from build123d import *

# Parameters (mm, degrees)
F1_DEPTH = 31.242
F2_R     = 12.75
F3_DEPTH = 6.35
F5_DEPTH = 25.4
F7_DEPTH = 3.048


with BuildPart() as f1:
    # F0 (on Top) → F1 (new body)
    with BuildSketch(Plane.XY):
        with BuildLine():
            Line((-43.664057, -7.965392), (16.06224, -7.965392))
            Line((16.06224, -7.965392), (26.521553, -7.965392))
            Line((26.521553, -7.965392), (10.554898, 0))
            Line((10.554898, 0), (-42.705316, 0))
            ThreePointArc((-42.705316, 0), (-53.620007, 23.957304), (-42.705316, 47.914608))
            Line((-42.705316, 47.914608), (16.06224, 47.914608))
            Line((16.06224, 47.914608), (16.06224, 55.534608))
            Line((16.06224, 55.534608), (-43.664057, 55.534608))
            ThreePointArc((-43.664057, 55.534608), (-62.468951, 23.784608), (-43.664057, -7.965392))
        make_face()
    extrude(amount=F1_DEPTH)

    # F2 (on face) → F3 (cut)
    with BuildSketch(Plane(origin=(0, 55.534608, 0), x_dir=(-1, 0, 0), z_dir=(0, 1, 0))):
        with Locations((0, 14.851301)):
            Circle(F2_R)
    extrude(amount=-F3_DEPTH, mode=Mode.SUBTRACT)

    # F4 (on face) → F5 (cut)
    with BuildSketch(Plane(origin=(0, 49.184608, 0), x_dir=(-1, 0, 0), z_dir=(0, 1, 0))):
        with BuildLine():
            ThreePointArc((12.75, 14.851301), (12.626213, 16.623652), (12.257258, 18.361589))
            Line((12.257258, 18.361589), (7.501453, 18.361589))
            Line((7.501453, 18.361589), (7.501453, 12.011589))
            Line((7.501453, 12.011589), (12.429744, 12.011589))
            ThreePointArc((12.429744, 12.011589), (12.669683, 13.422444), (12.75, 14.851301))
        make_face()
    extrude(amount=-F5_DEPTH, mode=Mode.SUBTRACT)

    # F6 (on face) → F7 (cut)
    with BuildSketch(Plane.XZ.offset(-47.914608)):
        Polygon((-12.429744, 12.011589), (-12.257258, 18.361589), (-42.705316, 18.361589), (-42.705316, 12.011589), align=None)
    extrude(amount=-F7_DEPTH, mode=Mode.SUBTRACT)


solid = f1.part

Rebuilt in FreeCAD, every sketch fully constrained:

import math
import FreeCAD as App
import Part
import Sketcher
Q = App.Units.Quantity

doc = App.newDocument("Part")
body = doc.addObject("PartDesign::Body", "Body")

# Sketch on XY plane
sketch1 = doc.addObject("Sketcher::SketchObject", "Sketch")
body.addObject(sketch1)
sketch1.AttachmentSupport = (doc.XY_Plane, [""])
sketch1.MapMode = "FlatFace"
sketch1.addGeometry([
    Part.LineSegment(App.Vector(-44, -8, 0), App.Vector(27, -8, 0)),  # 0
    Part.LineSegment(App.Vector(27, -8, 0), App.Vector(11, 0, 0)),  # 1
    Part.LineSegment(App.Vector(11, 0, 0), App.Vector(-43, 0, 0)),  # 2
    Part.ArcOfCircle(Part.Circle(App.Vector(-22, 24, 0), App.Vector(0, 0, 1), 32), math.radians(131), math.radians(229)),  # 3
    Part.LineSegment(App.Vector(-43, 48, 0), App.Vector(16, 48, 0)),  # 4
    Part.LineSegment(App.Vector(16, 48, 0), App.Vector(16, 56, 0)),  # 5
    Part.LineSegment(App.Vector(16, 56, 0), App.Vector(-44, 56, 0)),  # 6
    Part.ArcOfCircle(Part.Circle(App.Vector(-26, 24, 0), App.Vector(0, 0, 1), 36), math.radians(119), math.radians(241)),  # 7
], False)
sketch1.addConstraint([
    Sketcher.Constraint("Coincident", 0, 2, 1, 1),
    Sketcher.Constraint("Coincident", 1, 2, 2, 1),
    Sketcher.Constraint("Coincident", 2, 2, 3, 2),
    Sketcher.Constraint("Coincident", 3, 1, 4, 1),
    Sketcher.Constraint("Coincident", 4, 2, 5, 1),
    Sketcher.Constraint("Coincident", 5, 2, 6, 1),
    Sketcher.Constraint("Coincident", 6, 2, 7, 1),
    Sketcher.Constraint("Coincident", 7, 2, 0, 1),
    Sketcher.Constraint("Horizontal", 0),
    Sketcher.Constraint("Horizontal", 2),
    Sketcher.Constraint("Horizontal", 4),
    Sketcher.Constraint("Vertical", 5),
    Sketcher.Constraint("Horizontal", 6),
    Sketcher.Constraint("PointOnObject", 1, 2, -1),
    Sketcher.Constraint("Vertical", 2, 2, 3, 1),
    Sketcher.Constraint("Vertical", 6, 2, 7, 2),
    Sketcher.Constraint("Radius", 3, Q("1.25 in")),
    Sketcher.Constraint("DistanceY", 5, 1, 5, 2, Q("0.3 in")),
    Sketcher.Constraint("DistanceY", 0, 2, 3, 1, Q("2.2 in")),
    Sketcher.Constraint("Radius", 7, Q("36.205642 mm")),
    Sketcher.Constraint("DistanceX", 0, 1, 0, 2, Q("70.18561 mm")),
    Sketcher.Constraint("Distance", 1, Q("17.843249 mm")),
    Sketcher.Constraint("DistanceX", 2, 2, 2, 1, Q("53.260214 mm")),
    Sketcher.Constraint("DistanceX", 4, 1, 4, 2, Q("58.767556 mm")),
    Sketcher.Constraint("DistanceX", 6, 2, 6, 1, Q("59.726297 mm")),
    Sketcher.Constraint("DistanceX", 7, 3, -1, 1, Q("26.263309 mm")),
])
pad1 = doc.addObject("PartDesign::Pad", "Pad")
body.addObject(pad1)
pad1.Profile = sketch1
pad1.Length = Q("1.23 in")

# Sketch on XZ plane
sketch2 = doc.addObject("Sketcher::SketchObject", "Sketch001")
body.addObject(sketch2)
sketch2.AttachmentSupport = (doc.XZ_Plane, [""])
sketch2.MapMode = "FlatFace"
sketch2.AttachmentOffset = App.Placement(App.Vector(0, 0, -55.534608), App.Rotation())
sketch2.addGeometry(Part.Circle(App.Vector(0, 15, 0), App.Vector(0, 0, 1), 13), False)
sketch2.addConstraint([
    Sketcher.Constraint("PointOnObject", 0, 3, -2),
    Sketcher.Constraint("Diameter", 0, Q("25.5 mm")),
    Sketcher.Constraint("DistanceY", -1, 1, 0, 3, Q("14.851301 mm")),
])
pocket1 = doc.addObject("PartDesign::Pocket", "Pocket")
body.addObject(pocket1)
pocket1.Profile = sketch2
pocket1.Length = Q("0.25 in")
pocket1.Reversed = True

# Sketch on XZ plane
sketch3 = doc.addObject("Sketcher::SketchObject", "Sketch002")
body.addObject(sketch3)
sketch3.AttachmentSupport = (doc.XZ_Plane, [""])
sketch3.MapMode = "FlatFace"
sketch3.AttachmentOffset = App.Placement(App.Vector(0, 0, -49.184608), App.Rotation())
sketch3.addGeometry([
    Part.ArcOfCircle(Part.Circle(App.Vector(0, 14.9, 0), App.Vector(0, 0, 1), 12.8), math.radians(164.02), math.radians(180)),  # 0
    Part.LineSegment(App.Vector(-12.3, 18.4, 0), App.Vector(-7.5, 18.4, 0)),  # 1
    Part.LineSegment(App.Vector(-7.5, 18.4, 0), App.Vector(-7.5, 12, 0)),  # 2
    Part.LineSegment(App.Vector(-7.5, 12, 0), App.Vector(-12.4, 12, 0)),  # 3
    Part.ArcOfCircle(Part.Circle(App.Vector(0, 14.9, 0), App.Vector(0, 0, 1), 12.8), math.radians(-180), math.radians(-167.13)),  # 4
], False)
sketch3.addConstraint([
    Sketcher.Constraint("Coincident", 0, 1, 1, 1),
    Sketcher.Constraint("Coincident", 1, 2, 2, 1),
    Sketcher.Constraint("Coincident", 2, 2, 3, 1),
    Sketcher.Constraint("Coincident", 3, 2, 4, 2),
    Sketcher.Constraint("Tangent", 4, 1, 0, 2),
    Sketcher.Constraint("Horizontal", 1),
    Sketcher.Constraint("Vertical", 2),
    Sketcher.Constraint("Horizontal", 3),
    Sketcher.Constraint("DistanceY", 2, 2, 2, 1, Q("0.25 in")),
    Sketcher.Constraint("Radius", 0, Q("12.75006 mm")),
    Sketcher.Constraint("Radius", 4, Q("12.750003 mm")),
    Sketcher.Constraint("DistanceX", 3, 2, 3, 1, Q("4.928291 mm")),
    Sketcher.Constraint("DistanceY", -1, 1, 4, 3, Q("14.851301 mm")),
    Sketcher.Constraint("DistanceX", 4, 1, -1, 1, Q("12.75 mm")),
    Sketcher.Constraint("DistanceY", -1, 1, 4, 1, Q("14.851301 mm")),
    Sketcher.Constraint("DistanceX", 1, 1, 1, 2, Q("4.755805 mm")),
])
pocket2 = doc.addObject("PartDesign::Pocket", "Pocket001")
body.addObject(pocket2)
pocket2.Profile = sketch3
pocket2.Length = Q("1 in")
pocket2.Reversed = True

# Sketch on XZ plane
sketch4 = doc.addObject("Sketcher::SketchObject", "Sketch003")
body.addObject(sketch4)
sketch4.AttachmentSupport = (doc.XZ_Plane, [""])
sketch4.MapMode = "FlatFace"
sketch4.AttachmentOffset = App.Placement(App.Vector(0, 0, -47.914608), App.Rotation())
sketch4.addGeometry([
    Part.LineSegment(App.Vector(-12, 12, 0), App.Vector(-12, 18, 0)),
    Part.LineSegment(App.Vector(-12, 18, 0), App.Vector(-43, 18, 0)),
    Part.LineSegment(App.Vector(-43, 18, 0), App.Vector(-43, 12, 0)),
    Part.LineSegment(App.Vector(-43, 12, 0), App.Vector(-12, 12, 0)),
], False)
sketch4.addConstraint([
    Sketcher.Constraint("Coincident", 0, 2, 1, 1),
    Sketcher.Constraint("Coincident", 1, 2, 2, 1),
    Sketcher.Constraint("Coincident", 2, 2, 3, 1),
    Sketcher.Constraint("Coincident", 3, 2, 0, 1),
    Sketcher.Constraint("Horizontal", 1),
    Sketcher.Constraint("Vertical", 2),
    Sketcher.Constraint("Horizontal", 3),
    Sketcher.Constraint("DistanceY", 2, 2, 2, 1, Q("0.25 in")),
    Sketcher.Constraint("DistanceX", 1, 2, 1, 1, Q("30.448058 mm")),
    Sketcher.Constraint("DistanceX", 3, 1, 3, 2, Q("30.275572 mm")),
    Sketcher.Constraint("DistanceY", -1, 1, 0, 2, Q("18.361589 mm")),
    Sketcher.Constraint("DistanceX", 0, 2, -1, 1, Q("12.257258 mm")),
])
pocket3 = doc.addObject("PartDesign::Pocket", "Pocket002")
body.addObject(pocket3)
pocket3.Profile = sketch4
pocket3.Length = Q("0.12 in")

doc.recompute()
